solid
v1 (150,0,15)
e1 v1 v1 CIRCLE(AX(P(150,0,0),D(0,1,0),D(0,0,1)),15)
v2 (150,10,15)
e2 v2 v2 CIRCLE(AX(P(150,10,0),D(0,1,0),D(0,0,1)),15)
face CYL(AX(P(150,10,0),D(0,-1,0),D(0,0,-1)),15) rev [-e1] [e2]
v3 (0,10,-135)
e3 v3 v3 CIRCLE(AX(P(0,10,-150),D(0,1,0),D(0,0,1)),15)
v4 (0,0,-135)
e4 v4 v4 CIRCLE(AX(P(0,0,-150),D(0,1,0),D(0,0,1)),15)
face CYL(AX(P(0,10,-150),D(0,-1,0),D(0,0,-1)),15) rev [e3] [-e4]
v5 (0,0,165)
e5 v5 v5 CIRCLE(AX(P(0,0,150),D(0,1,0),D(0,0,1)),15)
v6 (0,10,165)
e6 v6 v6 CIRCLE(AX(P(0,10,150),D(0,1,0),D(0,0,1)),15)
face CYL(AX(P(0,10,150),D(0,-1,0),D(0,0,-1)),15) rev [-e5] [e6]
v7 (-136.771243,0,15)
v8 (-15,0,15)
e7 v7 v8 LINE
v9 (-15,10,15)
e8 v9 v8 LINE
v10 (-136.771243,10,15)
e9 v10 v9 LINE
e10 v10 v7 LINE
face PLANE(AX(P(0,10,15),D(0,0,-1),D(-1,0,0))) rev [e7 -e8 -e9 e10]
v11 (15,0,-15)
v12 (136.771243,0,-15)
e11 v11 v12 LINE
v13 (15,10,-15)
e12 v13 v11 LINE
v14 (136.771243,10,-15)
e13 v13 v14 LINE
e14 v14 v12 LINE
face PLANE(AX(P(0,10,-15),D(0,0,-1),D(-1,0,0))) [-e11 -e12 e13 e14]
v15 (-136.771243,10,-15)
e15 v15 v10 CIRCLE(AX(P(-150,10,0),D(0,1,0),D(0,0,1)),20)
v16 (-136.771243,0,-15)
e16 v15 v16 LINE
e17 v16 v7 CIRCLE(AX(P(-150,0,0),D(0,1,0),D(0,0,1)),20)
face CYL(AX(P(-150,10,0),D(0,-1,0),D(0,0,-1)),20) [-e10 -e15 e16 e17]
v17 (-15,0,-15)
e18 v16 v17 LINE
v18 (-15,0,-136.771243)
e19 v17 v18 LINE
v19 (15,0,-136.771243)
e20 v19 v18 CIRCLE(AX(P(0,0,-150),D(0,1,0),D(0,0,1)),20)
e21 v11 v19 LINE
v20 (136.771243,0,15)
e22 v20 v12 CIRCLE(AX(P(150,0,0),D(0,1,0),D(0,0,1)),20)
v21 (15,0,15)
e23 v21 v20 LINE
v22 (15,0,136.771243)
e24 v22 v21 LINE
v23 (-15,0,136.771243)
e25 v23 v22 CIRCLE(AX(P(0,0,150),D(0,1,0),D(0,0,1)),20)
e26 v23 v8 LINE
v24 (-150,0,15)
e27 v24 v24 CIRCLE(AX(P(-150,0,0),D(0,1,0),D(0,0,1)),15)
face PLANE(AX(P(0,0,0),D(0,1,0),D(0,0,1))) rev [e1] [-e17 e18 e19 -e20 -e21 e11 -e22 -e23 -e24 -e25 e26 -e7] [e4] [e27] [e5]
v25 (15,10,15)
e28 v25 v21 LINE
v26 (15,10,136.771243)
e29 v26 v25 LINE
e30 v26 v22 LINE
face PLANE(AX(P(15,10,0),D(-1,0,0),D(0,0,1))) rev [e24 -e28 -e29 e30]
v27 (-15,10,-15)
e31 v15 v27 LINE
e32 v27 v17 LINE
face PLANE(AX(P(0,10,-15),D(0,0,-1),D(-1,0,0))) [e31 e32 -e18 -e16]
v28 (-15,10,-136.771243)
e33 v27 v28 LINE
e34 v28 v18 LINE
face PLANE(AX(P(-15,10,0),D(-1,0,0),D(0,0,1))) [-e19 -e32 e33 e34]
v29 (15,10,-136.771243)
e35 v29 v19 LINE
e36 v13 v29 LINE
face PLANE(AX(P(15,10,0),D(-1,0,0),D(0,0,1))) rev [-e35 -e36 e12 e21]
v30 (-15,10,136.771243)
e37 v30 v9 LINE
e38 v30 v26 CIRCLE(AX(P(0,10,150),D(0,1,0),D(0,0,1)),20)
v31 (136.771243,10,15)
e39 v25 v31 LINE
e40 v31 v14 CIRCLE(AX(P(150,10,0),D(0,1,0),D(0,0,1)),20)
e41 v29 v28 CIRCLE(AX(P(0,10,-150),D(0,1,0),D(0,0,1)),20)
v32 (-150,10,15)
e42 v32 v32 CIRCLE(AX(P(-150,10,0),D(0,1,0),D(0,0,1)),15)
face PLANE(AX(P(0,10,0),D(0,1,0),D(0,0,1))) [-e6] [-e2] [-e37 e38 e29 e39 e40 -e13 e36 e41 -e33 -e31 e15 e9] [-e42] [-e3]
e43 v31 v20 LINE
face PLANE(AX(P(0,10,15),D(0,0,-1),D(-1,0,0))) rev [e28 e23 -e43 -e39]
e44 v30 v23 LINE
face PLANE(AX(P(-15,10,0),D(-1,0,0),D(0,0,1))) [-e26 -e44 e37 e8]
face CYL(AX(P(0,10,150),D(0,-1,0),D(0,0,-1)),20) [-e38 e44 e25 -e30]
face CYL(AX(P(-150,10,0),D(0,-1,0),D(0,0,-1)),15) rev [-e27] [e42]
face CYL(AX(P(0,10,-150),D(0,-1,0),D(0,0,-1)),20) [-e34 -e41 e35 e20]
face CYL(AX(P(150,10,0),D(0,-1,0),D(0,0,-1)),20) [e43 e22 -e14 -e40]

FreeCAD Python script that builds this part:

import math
import FreeCAD as App
import Part
import Sketcher

doc = App.newDocument("Part")
body = doc.addObject("PartDesign::Body", "Body")

sketch1 = body.newObject("Sketcher::SketchObject", "Sketch")
sketch1.AttachmentSupport = (doc.getObject("XZ_Plane"), [""])
sketch1.MapMode = "FlatFace"
sketch1.addGeometry(Part.LineSegment(App.Vector(15, 136.771243, 0), App.Vector(15, 15, 0)), False)
sketch1.addGeometry(Part.LineSegment(App.Vector(15, 15, 0), App.Vector(136.771243, 15, 0)), False)
sketch1.addGeometry(Part.ArcOfCircle(Part.Circle(App.Vector(150, 0, 0), App.Vector(0, 0, 1), 20), math.radians(-131.409622), math.radians(131.409622)), False)
sketch1.addGeometry(Part.LineSegment(App.Vector(136.771243, -15, 0), App.Vector(15, -15, 0)), False)
sketch1.addGeometry(Part.LineSegment(App.Vector(15, -15, 0), App.Vector(15, -136.771243, 0)), False)
sketch1.addGeometry(Part.ArcOfCircle(Part.Circle(App.Vector(0, -150, 0), App.Vector(0, 0, 1), 20), math.radians(138.590378), math.radians(401.409622)), False)
sketch1.addGeometry(Part.LineSegment(App.Vector(-15, -136.771243, 0), App.Vector(-15, -15, 0)), False)
sketch1.addGeometry(Part.LineSegment(App.Vector(-15, -15, 0), App.Vector(-136.771243, -15, 0)), False)
sketch1.addGeometry(Part.ArcOfCircle(Part.Circle(App.Vector(-150, 0, 0), App.Vector(0, 0, 1), 20), math.radians(48.590378), math.radians(311.409622)), False)
sketch1.addGeometry(Part.LineSegment(App.Vector(-136.771243, 15, 0), App.Vector(-15, 15, 0)), False)
sketch1.addGeometry(Part.LineSegment(App.Vector(-15, 15, 0), App.Vector(-15, 136.771243, 0)), False)
sketch1.addGeometry(Part.ArcOfCircle(Part.Circle(App.Vector(0, 150, 0), App.Vector(0, 0, 1), 20), math.radians(-41.409622), math.radians(221.409622)), False)
sketch1.addGeometry(Part.Circle(App.Vector(0, 150, 0), App.Vector(0, 0, 1), 15), False)
sketch1.addGeometry(Part.Circle(App.Vector(-150, 0, 0), App.Vector(0, 0, 1), 15), False)
sketch1.addGeometry(Part.Circle(App.Vector(0, -150, 0), App.Vector(0, 0, 1), 15), False)
sketch1.addGeometry(Part.Circle(App.Vector(150, 0, 0), App.Vector(0, 0, 1), 15), False)
sketch1.addConstraint(Sketcher.Constraint("Coincident", 0, 2, 1, 1))
sketch1.addConstraint(Sketcher.Constraint("Coincident", 1, 2, 2, 2))
sketch1.addConstraint(Sketcher.Constraint("Coincident", 2, 1, 3, 1))
sketch1.addConstraint(Sketcher.Constraint("Coincident", 3, 2, 4, 1))
sketch1.addConstraint(Sketcher.Constraint("Coincident", 4, 2, 5, 2))
sketch1.addConstraint(Sketcher.Constraint("Coincident", 5, 1, 6, 1))
sketch1.addConstraint(Sketcher.Constraint("Coincident", 6, 2, 7, 1))
sketch1.addConstraint(Sketcher.Constraint("Coincident", 7, 2, 8, 2))
sketch1.addConstraint(Sketcher.Constraint("Coincident", 8, 1, 9, 1))
sketch1.addConstraint(Sketcher.Constraint("Coincident", 9, 2, 10, 1))
sketch1.addConstraint(Sketcher.Constraint("Coincident", 10, 2, 11, 2))
sketch1.addConstraint(Sketcher.Constraint("Coincident", 11, 1, 0, 1))
sketch1.addConstraint(Sketcher.Constraint("Vertical", 0))
sketch1.addConstraint(Sketcher.Constraint("Horizontal", 1))
sketch1.addConstraint(Sketcher.Constraint("Horizontal", 3))
sketch1.addConstraint(Sketcher.Constraint("Vertical", 4))
sketch1.addConstraint(Sketcher.Constraint("Vertical", 6))
sketch1.addConstraint(Sketcher.Constraint("Horizontal", 7))
sketch1.addConstraint(Sketcher.Constraint("Horizontal", 9))
sketch1.addConstraint(Sketcher.Constraint("Vertical", 10))
sketch1.addConstraint(Sketcher.Constraint("Coincident", 12, 3, 11, 3))
sketch1.addConstraint(Sketcher.Constraint("Coincident", 13, 3, 8, 3))
sketch1.addConstraint(Sketcher.Constraint("Coincident", 14, 3, 5, 3))
sketch1.addConstraint(Sketcher.Constraint("Coincident", 15, 3, 2, 3))
sketch1.addConstraint(Sketcher.Constraint("Equal", 2, 5))
sketch1.addConstraint(Sketcher.Constraint("Equal", 5, 8))
sketch1.addConstraint(Sketcher.Constraint("Equal", 8, 11))
sketch1.addConstraint(Sketcher.Constraint("Equal", 12, 13))
sketch1.addConstraint(Sketcher.Constraint("Equal", 13, 14))
sketch1.addConstraint(Sketcher.Constraint("Equal", 14, 15))
sketch1.addConstraint(Sketcher.Constraint("Symmetric", 2, 3, 8, 3, -1, 1))
sketch1.addConstraint(Sketcher.Constraint("Symmetric", 5, 3, 11, 3, -1, 1))
sketch1.addConstraint(Sketcher.Constraint("Symmetric", 0, 2, 6, 2, -1, 1))
sketch1.addConstraint(Sketcher.Constraint("Symmetric", 3, 2, 9, 2, -1, 1))
sketch1.addConstraint(Sketcher.Constraint("Symmetric", 4, 2, 5, 1, -2))
sketch1.addConstraint(Sketcher.Constraint("Symmetric", 2, 1, 7, 2, -2))
sketch1.addConstraint(Sketcher.Constraint("Equal", 9, 0))
sketch1.addConstraint(Sketcher.Constraint("Diameter", 12, 30.0))
sketch1.addConstraint(Sketcher.Constraint("Radius", 2, 20.0))
sketch1.addConstraint(Sketcher.Constraint("DistanceX", -1, 1, 2, 3, 150.0))
sketch1.addConstraint(Sketcher.Constraint("DistanceY", 5, 3, -1, 1, 150.0))
sketch1.addConstraint(Sketcher.Constraint("DistanceX", -1, 1, 0, 2, 15.0))
pad1 = body.newObject("PartDesign::Pad", "Pad")
pad1.Profile = sketch1
pad1.Length = 10
pad1.Reversed = True

doc.recompute()
